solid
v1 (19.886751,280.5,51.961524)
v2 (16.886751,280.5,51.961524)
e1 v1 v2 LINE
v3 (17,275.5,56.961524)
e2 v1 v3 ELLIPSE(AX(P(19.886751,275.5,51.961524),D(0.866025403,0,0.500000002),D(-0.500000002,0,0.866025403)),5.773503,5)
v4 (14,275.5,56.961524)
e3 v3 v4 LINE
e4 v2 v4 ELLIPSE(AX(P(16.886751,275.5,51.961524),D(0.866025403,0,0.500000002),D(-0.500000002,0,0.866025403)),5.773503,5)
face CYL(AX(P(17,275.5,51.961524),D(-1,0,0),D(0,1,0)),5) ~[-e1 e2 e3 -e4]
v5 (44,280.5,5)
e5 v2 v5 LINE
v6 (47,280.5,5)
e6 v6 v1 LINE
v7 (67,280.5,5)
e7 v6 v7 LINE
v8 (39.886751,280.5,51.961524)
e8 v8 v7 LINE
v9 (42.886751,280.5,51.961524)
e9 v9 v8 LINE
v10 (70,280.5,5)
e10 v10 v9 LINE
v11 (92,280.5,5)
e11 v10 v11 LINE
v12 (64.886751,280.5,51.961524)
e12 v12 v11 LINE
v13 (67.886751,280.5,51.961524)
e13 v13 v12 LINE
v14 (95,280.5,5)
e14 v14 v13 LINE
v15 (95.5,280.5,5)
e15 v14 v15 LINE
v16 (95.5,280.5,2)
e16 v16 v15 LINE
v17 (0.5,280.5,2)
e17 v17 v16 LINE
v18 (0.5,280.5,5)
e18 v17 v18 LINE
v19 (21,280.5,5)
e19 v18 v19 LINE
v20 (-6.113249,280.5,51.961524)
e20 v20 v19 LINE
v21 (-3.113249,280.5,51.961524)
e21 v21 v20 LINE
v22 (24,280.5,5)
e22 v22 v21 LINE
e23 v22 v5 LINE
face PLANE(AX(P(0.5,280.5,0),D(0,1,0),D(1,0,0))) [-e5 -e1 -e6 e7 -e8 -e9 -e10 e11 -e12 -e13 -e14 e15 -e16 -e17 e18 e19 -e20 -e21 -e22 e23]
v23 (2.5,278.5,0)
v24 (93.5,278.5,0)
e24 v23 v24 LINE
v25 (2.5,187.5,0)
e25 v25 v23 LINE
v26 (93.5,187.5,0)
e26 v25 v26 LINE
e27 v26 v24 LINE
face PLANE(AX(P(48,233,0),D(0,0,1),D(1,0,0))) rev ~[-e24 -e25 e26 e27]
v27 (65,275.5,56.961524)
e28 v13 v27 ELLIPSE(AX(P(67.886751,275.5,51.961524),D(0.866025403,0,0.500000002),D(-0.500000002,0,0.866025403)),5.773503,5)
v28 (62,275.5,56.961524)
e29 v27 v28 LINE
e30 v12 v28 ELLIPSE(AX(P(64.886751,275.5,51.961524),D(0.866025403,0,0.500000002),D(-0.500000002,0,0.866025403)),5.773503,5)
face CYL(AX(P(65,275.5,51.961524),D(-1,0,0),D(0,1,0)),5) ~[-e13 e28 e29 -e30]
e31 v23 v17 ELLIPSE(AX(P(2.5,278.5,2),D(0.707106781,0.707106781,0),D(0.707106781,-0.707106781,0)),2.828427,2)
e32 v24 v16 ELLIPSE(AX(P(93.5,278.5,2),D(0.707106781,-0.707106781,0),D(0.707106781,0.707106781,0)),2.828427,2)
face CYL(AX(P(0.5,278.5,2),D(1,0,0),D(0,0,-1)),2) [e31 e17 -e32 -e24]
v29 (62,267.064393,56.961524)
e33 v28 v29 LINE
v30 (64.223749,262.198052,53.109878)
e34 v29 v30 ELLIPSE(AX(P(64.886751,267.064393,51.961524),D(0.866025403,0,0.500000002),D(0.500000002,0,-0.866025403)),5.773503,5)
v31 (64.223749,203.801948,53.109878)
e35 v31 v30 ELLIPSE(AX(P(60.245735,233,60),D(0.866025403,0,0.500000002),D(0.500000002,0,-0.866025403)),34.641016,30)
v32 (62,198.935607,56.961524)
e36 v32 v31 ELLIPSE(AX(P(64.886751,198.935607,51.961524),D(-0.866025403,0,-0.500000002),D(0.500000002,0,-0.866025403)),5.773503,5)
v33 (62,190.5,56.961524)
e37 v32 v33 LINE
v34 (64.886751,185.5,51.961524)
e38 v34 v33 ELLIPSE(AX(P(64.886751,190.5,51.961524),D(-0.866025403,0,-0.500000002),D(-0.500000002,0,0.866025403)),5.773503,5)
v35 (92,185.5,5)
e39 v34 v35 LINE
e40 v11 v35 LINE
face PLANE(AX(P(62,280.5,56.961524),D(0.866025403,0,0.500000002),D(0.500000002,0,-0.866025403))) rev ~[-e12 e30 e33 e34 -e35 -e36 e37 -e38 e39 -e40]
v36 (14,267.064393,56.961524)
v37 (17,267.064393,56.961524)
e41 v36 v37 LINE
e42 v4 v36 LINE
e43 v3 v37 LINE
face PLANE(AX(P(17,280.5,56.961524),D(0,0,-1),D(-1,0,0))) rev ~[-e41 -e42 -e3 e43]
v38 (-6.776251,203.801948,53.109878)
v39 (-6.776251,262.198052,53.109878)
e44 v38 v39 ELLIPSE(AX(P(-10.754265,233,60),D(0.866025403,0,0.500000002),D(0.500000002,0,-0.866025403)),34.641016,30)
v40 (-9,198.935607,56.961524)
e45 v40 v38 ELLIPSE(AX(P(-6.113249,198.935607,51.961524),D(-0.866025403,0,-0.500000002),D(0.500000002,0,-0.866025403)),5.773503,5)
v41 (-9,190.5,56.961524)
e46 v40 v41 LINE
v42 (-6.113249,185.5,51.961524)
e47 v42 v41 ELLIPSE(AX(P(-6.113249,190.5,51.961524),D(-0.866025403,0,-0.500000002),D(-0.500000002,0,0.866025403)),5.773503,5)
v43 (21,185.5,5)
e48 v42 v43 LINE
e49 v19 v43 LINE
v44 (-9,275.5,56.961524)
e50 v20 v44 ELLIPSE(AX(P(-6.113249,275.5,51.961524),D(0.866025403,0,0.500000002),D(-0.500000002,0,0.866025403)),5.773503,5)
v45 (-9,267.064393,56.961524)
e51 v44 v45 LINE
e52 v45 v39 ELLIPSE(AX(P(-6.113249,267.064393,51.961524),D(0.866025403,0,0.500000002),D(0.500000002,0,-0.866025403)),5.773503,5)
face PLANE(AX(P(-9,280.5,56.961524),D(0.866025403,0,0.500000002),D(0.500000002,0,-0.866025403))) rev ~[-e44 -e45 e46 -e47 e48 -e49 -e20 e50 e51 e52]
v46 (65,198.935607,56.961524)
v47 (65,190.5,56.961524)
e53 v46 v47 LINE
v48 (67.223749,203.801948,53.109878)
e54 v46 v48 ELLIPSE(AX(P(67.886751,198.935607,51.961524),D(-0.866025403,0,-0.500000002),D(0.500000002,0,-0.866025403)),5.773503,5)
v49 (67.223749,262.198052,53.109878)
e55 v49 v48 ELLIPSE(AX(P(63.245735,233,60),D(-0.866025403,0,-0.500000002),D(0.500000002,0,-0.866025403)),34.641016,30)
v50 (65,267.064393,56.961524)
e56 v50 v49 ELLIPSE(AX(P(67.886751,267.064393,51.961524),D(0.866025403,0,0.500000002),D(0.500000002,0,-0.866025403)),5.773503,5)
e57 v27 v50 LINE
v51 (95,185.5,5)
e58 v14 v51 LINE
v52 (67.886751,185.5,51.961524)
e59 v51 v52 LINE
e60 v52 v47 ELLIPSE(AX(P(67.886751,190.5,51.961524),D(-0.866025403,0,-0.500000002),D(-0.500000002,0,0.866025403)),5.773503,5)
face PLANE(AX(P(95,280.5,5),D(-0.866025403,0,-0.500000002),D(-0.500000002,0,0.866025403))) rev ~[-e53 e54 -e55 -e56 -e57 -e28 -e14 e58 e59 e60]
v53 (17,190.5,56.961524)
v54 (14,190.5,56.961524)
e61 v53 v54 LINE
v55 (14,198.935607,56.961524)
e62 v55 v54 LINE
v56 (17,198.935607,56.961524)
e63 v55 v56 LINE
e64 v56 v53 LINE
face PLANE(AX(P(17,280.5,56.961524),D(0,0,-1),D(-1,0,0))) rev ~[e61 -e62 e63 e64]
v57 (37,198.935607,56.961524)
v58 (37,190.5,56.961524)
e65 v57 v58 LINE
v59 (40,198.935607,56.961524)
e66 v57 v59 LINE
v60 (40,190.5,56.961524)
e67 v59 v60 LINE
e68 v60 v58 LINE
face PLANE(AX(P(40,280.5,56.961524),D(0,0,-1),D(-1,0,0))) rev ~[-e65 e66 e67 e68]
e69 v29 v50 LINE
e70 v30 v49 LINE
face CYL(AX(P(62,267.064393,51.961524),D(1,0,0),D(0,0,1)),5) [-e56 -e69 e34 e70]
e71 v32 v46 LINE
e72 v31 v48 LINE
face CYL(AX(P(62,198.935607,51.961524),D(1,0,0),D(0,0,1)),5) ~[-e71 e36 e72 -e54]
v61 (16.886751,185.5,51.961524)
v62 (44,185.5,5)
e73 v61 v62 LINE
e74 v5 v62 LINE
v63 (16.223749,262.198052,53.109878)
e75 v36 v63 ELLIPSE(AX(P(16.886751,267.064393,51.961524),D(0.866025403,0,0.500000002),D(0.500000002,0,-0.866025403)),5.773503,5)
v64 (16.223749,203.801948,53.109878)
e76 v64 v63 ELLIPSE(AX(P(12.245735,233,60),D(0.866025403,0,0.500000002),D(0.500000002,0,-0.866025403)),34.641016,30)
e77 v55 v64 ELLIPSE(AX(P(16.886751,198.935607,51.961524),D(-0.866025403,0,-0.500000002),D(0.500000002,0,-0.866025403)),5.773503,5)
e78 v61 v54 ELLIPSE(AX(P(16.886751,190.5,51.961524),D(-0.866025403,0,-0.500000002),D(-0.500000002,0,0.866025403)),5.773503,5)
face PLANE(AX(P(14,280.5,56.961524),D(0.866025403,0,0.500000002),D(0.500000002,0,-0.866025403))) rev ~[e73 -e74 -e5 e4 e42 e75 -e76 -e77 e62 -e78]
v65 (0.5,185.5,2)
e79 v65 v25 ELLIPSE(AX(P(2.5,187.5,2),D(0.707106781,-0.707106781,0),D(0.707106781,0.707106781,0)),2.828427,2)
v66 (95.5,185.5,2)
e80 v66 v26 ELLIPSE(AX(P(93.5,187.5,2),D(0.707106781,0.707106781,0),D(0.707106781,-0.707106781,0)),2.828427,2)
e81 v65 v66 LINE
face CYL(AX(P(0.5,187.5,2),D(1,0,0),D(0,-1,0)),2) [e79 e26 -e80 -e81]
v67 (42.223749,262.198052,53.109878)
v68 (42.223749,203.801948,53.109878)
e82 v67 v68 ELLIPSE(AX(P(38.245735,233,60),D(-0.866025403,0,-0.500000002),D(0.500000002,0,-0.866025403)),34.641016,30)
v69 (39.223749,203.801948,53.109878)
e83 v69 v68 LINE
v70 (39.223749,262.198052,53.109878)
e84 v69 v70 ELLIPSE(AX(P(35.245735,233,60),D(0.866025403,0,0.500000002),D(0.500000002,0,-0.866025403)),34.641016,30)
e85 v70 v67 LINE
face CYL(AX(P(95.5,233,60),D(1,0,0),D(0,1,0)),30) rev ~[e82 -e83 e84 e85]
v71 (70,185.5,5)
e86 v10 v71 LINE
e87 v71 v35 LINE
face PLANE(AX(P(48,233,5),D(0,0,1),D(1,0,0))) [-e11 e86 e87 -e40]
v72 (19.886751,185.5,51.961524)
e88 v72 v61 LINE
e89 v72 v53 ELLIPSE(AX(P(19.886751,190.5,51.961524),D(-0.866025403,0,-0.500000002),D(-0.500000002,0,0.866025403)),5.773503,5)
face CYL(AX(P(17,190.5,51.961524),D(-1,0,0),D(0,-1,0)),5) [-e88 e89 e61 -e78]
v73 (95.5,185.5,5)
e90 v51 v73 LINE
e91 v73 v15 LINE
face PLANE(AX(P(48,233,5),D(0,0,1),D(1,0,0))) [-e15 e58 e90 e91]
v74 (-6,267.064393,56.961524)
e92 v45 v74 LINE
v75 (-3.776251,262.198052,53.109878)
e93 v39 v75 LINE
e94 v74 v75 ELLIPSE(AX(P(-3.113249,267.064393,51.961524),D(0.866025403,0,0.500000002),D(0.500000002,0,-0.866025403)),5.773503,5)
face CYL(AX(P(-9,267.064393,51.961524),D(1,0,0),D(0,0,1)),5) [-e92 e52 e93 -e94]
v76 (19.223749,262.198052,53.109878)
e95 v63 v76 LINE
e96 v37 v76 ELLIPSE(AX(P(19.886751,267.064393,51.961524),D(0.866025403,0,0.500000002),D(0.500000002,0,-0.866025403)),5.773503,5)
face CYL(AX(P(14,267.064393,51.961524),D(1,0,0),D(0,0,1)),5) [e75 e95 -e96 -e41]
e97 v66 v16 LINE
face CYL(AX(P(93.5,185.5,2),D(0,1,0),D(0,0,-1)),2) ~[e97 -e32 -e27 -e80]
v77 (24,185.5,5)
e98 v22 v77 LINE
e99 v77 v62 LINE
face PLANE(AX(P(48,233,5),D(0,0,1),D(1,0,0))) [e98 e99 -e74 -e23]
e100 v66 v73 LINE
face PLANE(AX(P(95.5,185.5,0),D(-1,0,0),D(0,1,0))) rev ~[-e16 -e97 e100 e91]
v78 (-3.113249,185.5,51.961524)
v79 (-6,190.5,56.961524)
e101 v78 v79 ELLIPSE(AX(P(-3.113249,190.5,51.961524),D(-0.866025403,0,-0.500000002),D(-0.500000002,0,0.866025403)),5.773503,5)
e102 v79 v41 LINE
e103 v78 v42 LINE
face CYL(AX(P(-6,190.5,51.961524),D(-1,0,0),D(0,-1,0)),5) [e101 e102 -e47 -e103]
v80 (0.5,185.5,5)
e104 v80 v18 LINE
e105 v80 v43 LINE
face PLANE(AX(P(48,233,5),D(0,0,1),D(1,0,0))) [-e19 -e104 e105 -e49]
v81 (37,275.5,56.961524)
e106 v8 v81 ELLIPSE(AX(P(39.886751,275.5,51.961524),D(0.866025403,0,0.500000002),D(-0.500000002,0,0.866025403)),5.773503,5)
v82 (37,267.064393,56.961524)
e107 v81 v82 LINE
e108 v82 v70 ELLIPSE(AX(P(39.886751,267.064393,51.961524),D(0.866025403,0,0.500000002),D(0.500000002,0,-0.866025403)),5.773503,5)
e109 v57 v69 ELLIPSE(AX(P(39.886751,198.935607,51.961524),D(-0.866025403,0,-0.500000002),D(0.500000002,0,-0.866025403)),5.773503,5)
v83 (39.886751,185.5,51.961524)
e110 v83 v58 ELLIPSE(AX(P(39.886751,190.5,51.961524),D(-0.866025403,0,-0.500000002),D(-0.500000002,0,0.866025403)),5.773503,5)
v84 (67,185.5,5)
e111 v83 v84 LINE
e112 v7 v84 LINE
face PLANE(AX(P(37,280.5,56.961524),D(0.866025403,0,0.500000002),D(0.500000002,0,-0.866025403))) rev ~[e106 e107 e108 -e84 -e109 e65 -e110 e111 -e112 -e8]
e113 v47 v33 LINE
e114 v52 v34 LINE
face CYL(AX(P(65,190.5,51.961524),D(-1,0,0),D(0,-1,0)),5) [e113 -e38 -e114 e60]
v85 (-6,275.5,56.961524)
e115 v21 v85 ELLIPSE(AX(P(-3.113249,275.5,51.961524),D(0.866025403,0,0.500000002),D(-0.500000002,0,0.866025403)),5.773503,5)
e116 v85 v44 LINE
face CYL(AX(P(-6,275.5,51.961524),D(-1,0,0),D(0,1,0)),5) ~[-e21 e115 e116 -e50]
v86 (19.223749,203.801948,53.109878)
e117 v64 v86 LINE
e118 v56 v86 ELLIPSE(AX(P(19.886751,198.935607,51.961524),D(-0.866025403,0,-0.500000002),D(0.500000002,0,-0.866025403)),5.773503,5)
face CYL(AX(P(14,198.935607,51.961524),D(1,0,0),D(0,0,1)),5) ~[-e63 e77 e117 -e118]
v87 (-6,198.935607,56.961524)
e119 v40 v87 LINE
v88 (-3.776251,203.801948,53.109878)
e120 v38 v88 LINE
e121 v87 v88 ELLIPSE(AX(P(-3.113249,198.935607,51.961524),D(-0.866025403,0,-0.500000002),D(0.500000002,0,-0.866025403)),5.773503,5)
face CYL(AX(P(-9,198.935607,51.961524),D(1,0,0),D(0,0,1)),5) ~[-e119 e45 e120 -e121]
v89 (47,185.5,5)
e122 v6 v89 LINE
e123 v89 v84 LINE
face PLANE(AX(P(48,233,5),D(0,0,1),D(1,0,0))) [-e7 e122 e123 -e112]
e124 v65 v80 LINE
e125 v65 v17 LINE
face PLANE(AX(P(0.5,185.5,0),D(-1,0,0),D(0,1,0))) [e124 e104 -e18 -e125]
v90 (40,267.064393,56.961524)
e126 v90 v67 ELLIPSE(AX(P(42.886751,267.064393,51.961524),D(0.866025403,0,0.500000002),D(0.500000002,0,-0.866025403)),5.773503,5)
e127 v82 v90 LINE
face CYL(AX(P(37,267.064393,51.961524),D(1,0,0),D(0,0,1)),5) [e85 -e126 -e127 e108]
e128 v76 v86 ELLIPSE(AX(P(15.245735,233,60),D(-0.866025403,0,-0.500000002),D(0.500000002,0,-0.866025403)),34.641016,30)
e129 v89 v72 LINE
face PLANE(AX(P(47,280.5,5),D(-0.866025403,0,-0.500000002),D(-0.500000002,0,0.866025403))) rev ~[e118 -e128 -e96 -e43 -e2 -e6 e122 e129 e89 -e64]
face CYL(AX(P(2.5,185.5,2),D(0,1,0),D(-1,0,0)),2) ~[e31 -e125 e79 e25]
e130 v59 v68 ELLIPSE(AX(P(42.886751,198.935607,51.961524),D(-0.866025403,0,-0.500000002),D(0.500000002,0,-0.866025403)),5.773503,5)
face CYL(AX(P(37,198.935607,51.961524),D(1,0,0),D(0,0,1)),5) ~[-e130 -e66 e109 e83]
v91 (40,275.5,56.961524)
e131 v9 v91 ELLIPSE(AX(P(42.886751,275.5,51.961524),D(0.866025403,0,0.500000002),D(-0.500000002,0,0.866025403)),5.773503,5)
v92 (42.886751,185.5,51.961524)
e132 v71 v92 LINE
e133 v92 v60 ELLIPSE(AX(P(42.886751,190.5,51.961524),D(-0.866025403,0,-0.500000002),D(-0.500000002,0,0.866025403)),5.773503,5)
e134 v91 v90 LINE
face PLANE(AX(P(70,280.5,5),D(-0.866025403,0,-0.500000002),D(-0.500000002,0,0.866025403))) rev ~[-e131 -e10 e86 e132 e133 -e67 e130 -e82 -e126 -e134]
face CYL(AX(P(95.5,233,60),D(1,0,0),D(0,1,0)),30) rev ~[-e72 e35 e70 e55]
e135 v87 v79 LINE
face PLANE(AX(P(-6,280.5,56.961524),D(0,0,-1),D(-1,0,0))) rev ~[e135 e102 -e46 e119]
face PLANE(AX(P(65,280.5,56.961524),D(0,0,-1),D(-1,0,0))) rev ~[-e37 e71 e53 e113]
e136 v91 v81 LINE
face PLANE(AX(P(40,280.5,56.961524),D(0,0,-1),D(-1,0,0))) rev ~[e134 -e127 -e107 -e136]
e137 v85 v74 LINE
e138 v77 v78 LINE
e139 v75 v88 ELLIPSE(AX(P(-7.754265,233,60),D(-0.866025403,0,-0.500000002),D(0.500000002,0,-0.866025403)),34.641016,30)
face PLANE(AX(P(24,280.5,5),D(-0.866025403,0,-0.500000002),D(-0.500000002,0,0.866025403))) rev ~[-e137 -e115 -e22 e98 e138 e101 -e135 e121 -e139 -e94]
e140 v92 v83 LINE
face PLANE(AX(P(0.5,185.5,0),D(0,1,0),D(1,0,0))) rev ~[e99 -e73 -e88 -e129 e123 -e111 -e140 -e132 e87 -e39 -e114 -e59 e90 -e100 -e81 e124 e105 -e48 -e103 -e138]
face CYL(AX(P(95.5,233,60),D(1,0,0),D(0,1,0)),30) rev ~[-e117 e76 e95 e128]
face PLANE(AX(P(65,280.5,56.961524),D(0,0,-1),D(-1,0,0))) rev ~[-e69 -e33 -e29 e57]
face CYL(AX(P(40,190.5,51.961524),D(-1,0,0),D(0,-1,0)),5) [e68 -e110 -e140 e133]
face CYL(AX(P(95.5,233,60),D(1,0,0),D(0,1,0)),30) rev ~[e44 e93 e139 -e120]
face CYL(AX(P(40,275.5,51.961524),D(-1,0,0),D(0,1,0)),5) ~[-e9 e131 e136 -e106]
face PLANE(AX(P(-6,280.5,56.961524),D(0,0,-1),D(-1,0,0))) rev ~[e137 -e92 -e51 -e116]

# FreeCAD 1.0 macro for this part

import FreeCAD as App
import Part
import Sketcher
from FreeCAD import Vector
Q = App.Units.Quantity


def edges_at(feature, points):
    """Names of the edges that pass closest to the given points."""
    edges = feature.Shape.Edges
    near = lambda p: min(range(len(edges)), key=lambda i: edges[i].distToShape(Part.Vertex(*p))[0])
    return sorted({f"Edge{near(p) + 1}" for p in points})


def add_polygon(sketch, points):
    """Adds a closed chain of lines whose ends are joined by coincident constraints."""
    first, n = sketch.GeometryCount, len(points)
    for a, b in zip(points, points[1:] + points[:1]):
        sketch.addGeometry(Part.LineSegment(App.Vector(*a, 0), App.Vector(*b, 0)), False)
    for i in range(n):
        sketch.addConstraint(Sketcher.Constraint("Coincident", first + i, 2, first + (i + 1) % n, 1))

doc = App.newDocument("Part")
body = doc.addObject("PartDesign::Body", "Body")

# Sketch on XY plane
sketch1 = body.newObject("Sketcher::SketchObject", "Sketch")
sketch1.AttachmentSupport = (doc.getObject("XY_Plane"), [""])
sketch1.MapMode = "FlatFace"
add_polygon(sketch1, [(-48, 48), (-48, -48), (48, -48), (48, 48)])  # lines 0-3
sketch1.addConstraint([
    Sketcher.Constraint("Vertical", 0),
    Sketcher.Constraint("Horizontal", 1),
    Sketcher.Constraint("Vertical", 2),
    Sketcher.Constraint("Horizontal", 3),
    Sketcher.Constraint("Symmetric", 0, 2, 2, 2, -1, 1),
    Sketcher.Constraint("Equal", 3, 0),
    Sketcher.Constraint("DistanceX", 1, 1, 1, 2, 95.0),
])
pad1 = body.newObject("PartDesign::Pad", "Pad")
pad1.Profile = sketch1
pad1.Length = 5

# Sketch on XZ plane
sketch2 = body.newObject("Sketcher::SketchObject", "Sketch001")
sketch2.AttachmentSupport = (doc.getObject("XZ_Plane"), [""])
sketch2.MapMode = "FlatFace"
sketch2.AttachmentOffset = App.Placement(Vector(0, 0, -47.5), App.Rotation())
add_polygon(sketch2, [(17, 57), (47, 5), (44, 5), (14, 57)])  # lines 0-3
add_polygon(sketch2, [(-8, 57), (22, 5), (19, 5), (-11, 57)])  # lines 4-7
add_polygon(sketch2, [(-31, 57), (-1, 5), (-4, 5), (-34, 57)])  # lines 8-11
add_polygon(sketch2, [(-54, 57), (-24, 5), (-27, 5), (-57, 57)])  # lines 12-15
sketch2.addConstraint([
    Sketcher.Constraint("Horizontal", 1),
    Sketcher.Constraint("Horizontal", 3),
    Sketcher.Constraint("Horizontal", 5),
    Sketcher.Constraint("Horizontal", 7),
    Sketcher.Constraint("Horizontal", 9),
    Sketcher.Constraint("Horizontal", 11),
    Sketcher.Constraint("Horizontal", 13),
    Sketcher.Constraint("Horizontal", 15),
    Sketcher.Constraint("Parallel", 0, 2),
    Sketcher.Constraint("Parallel", 2, 4),
    Sketcher.Constraint("Parallel", 4, 6),
    Sketcher.Constraint("Parallel", 6, 8),
    Sketcher.Constraint("Parallel", 8, 10),
    Sketcher.Constraint("Parallel", 10, 12),
    Sketcher.Constraint("Parallel", 12, 14),
    Sketcher.Constraint("Horizontal", 1, 2, 4, 2),
    Sketcher.Constraint("Horizontal", 3, 2, 6, 2),
    Sketcher.Constraint("Horizontal", 5, 2, 8, 2),
    Sketcher.Constraint("Horizontal", 7, 2, 10, 2),
    Sketcher.Constraint("Horizontal", 9, 2, 12, 2),
    Sketcher.Constraint("Horizontal", 11, 2, 14, 2),
    Sketcher.Constraint("Equal", 3, 5),
    Sketcher.Constraint("Equal", 7, 9),
    Sketcher.Constraint("Equal", 11, 13),
    Sketcher.Constraint("DistanceX", 1, 2, 1, 1, 3.0),
    Sketcher.Constraint("Angle", 0, Q("-60 deg")),
    Sketcher.Constraint("Distance", 0, 60.0),
    Sketcher.Constraint("DistanceX", -1, 1, 0, 2, 47.0),
    Sketcher.Constraint("DistanceY", -1, 1, 0, 2, 5.0),
    Sketcher.Constraint("DistanceX", -1, 1, 4, 2, 22.0),
    Sketcher.Constraint("DistanceX", 8, 2, -1, 1, 1.0),
    Sketcher.Constraint("DistanceX", 12, 2, -1, 1, 24.0),
])
pad2 = body.newObject("PartDesign::Pad", "Pad001")
pad2.Profile = sketch2
pad2.Length = 95

# Sketch on YZ plane
sketch3 = body.newObject("Sketcher::SketchObject", "Sketch002")
sketch3.AttachmentSupport = (doc.getObject("YZ_Plane"), [""])
sketch3.MapMode = "FlatFace"
sketch3.AttachmentOffset = App.Placement(Vector(0, 0, 47.5), App.Rotation())
sketch3.addGeometry(Part.Circle(Vector(0, 60, 0), Vector(0, 0, 1), 30), False)
sketch3.addConstraint([
    Sketcher.Constraint("PointOnObject", 0, 3, -2),
    Sketcher.Constraint("Diameter", 0, 60.0),
    Sketcher.Constraint("DistanceY", -1, 1, 0, 3, 60.0),
])
pocket1 = body.newObject("PartDesign::Pocket", "Pocket")
pocket1.Profile = sketch3
pocket1.Type = "ThroughAll"
doc.recompute()

fillet = body.newObject("PartDesign::Fillet", "Fillet")
fillet.Base = (pocket1, edges_at(pocket1, [
    (15.5, -47.5, 56.962),
    (15.5, -29.846, 56.962),
    (-9.5, -47.5, 56.962),
    (-9.5, -29.846, 56.962),
    (-32.5, -47.5, 56.962),
    (-32.5, -29.846, 56.962),
    (-55.5, -47.5, 56.962),
    (-55.5, -29.846, 56.962),
    (15.5, 29.846, 56.962),
    (15.5, 47.5, 56.962),
    (-9.5, 29.846, 56.962),
    (-9.5, 47.5, 56.962),
    (-32.5, 29.846, 56.962),
    (-32.5, 47.5, 56.962),
    (-55.5, 29.846, 56.962),
    (-55.5, 47.5, 56.962),
]))
fillet.Radius = 5
doc.recompute()

fillet2 = body.newObject("PartDesign::Fillet", "Fillet001")
fillet2.Base = (fillet, edges_at(fillet, [
    (0, -47.5, 0),
    (47.5, 0, 0),
    (0, 47.5, 0),
    (-47.5, 0, 0),
]))
fillet2.Radius = 2
body2 = doc.addObject("PartDesign::Body", "Body001")
doc.recompute()

body.Placement = App.Placement(Vector(48, 233, 0), App.Rotation(Vector(0, 0, 1), 0))
boolean = body2.newObject("PartDesign::Boolean", "Boolean")
boolean.Type = "Fuse"
boolean.addObjects([body])

doc.recompute()
